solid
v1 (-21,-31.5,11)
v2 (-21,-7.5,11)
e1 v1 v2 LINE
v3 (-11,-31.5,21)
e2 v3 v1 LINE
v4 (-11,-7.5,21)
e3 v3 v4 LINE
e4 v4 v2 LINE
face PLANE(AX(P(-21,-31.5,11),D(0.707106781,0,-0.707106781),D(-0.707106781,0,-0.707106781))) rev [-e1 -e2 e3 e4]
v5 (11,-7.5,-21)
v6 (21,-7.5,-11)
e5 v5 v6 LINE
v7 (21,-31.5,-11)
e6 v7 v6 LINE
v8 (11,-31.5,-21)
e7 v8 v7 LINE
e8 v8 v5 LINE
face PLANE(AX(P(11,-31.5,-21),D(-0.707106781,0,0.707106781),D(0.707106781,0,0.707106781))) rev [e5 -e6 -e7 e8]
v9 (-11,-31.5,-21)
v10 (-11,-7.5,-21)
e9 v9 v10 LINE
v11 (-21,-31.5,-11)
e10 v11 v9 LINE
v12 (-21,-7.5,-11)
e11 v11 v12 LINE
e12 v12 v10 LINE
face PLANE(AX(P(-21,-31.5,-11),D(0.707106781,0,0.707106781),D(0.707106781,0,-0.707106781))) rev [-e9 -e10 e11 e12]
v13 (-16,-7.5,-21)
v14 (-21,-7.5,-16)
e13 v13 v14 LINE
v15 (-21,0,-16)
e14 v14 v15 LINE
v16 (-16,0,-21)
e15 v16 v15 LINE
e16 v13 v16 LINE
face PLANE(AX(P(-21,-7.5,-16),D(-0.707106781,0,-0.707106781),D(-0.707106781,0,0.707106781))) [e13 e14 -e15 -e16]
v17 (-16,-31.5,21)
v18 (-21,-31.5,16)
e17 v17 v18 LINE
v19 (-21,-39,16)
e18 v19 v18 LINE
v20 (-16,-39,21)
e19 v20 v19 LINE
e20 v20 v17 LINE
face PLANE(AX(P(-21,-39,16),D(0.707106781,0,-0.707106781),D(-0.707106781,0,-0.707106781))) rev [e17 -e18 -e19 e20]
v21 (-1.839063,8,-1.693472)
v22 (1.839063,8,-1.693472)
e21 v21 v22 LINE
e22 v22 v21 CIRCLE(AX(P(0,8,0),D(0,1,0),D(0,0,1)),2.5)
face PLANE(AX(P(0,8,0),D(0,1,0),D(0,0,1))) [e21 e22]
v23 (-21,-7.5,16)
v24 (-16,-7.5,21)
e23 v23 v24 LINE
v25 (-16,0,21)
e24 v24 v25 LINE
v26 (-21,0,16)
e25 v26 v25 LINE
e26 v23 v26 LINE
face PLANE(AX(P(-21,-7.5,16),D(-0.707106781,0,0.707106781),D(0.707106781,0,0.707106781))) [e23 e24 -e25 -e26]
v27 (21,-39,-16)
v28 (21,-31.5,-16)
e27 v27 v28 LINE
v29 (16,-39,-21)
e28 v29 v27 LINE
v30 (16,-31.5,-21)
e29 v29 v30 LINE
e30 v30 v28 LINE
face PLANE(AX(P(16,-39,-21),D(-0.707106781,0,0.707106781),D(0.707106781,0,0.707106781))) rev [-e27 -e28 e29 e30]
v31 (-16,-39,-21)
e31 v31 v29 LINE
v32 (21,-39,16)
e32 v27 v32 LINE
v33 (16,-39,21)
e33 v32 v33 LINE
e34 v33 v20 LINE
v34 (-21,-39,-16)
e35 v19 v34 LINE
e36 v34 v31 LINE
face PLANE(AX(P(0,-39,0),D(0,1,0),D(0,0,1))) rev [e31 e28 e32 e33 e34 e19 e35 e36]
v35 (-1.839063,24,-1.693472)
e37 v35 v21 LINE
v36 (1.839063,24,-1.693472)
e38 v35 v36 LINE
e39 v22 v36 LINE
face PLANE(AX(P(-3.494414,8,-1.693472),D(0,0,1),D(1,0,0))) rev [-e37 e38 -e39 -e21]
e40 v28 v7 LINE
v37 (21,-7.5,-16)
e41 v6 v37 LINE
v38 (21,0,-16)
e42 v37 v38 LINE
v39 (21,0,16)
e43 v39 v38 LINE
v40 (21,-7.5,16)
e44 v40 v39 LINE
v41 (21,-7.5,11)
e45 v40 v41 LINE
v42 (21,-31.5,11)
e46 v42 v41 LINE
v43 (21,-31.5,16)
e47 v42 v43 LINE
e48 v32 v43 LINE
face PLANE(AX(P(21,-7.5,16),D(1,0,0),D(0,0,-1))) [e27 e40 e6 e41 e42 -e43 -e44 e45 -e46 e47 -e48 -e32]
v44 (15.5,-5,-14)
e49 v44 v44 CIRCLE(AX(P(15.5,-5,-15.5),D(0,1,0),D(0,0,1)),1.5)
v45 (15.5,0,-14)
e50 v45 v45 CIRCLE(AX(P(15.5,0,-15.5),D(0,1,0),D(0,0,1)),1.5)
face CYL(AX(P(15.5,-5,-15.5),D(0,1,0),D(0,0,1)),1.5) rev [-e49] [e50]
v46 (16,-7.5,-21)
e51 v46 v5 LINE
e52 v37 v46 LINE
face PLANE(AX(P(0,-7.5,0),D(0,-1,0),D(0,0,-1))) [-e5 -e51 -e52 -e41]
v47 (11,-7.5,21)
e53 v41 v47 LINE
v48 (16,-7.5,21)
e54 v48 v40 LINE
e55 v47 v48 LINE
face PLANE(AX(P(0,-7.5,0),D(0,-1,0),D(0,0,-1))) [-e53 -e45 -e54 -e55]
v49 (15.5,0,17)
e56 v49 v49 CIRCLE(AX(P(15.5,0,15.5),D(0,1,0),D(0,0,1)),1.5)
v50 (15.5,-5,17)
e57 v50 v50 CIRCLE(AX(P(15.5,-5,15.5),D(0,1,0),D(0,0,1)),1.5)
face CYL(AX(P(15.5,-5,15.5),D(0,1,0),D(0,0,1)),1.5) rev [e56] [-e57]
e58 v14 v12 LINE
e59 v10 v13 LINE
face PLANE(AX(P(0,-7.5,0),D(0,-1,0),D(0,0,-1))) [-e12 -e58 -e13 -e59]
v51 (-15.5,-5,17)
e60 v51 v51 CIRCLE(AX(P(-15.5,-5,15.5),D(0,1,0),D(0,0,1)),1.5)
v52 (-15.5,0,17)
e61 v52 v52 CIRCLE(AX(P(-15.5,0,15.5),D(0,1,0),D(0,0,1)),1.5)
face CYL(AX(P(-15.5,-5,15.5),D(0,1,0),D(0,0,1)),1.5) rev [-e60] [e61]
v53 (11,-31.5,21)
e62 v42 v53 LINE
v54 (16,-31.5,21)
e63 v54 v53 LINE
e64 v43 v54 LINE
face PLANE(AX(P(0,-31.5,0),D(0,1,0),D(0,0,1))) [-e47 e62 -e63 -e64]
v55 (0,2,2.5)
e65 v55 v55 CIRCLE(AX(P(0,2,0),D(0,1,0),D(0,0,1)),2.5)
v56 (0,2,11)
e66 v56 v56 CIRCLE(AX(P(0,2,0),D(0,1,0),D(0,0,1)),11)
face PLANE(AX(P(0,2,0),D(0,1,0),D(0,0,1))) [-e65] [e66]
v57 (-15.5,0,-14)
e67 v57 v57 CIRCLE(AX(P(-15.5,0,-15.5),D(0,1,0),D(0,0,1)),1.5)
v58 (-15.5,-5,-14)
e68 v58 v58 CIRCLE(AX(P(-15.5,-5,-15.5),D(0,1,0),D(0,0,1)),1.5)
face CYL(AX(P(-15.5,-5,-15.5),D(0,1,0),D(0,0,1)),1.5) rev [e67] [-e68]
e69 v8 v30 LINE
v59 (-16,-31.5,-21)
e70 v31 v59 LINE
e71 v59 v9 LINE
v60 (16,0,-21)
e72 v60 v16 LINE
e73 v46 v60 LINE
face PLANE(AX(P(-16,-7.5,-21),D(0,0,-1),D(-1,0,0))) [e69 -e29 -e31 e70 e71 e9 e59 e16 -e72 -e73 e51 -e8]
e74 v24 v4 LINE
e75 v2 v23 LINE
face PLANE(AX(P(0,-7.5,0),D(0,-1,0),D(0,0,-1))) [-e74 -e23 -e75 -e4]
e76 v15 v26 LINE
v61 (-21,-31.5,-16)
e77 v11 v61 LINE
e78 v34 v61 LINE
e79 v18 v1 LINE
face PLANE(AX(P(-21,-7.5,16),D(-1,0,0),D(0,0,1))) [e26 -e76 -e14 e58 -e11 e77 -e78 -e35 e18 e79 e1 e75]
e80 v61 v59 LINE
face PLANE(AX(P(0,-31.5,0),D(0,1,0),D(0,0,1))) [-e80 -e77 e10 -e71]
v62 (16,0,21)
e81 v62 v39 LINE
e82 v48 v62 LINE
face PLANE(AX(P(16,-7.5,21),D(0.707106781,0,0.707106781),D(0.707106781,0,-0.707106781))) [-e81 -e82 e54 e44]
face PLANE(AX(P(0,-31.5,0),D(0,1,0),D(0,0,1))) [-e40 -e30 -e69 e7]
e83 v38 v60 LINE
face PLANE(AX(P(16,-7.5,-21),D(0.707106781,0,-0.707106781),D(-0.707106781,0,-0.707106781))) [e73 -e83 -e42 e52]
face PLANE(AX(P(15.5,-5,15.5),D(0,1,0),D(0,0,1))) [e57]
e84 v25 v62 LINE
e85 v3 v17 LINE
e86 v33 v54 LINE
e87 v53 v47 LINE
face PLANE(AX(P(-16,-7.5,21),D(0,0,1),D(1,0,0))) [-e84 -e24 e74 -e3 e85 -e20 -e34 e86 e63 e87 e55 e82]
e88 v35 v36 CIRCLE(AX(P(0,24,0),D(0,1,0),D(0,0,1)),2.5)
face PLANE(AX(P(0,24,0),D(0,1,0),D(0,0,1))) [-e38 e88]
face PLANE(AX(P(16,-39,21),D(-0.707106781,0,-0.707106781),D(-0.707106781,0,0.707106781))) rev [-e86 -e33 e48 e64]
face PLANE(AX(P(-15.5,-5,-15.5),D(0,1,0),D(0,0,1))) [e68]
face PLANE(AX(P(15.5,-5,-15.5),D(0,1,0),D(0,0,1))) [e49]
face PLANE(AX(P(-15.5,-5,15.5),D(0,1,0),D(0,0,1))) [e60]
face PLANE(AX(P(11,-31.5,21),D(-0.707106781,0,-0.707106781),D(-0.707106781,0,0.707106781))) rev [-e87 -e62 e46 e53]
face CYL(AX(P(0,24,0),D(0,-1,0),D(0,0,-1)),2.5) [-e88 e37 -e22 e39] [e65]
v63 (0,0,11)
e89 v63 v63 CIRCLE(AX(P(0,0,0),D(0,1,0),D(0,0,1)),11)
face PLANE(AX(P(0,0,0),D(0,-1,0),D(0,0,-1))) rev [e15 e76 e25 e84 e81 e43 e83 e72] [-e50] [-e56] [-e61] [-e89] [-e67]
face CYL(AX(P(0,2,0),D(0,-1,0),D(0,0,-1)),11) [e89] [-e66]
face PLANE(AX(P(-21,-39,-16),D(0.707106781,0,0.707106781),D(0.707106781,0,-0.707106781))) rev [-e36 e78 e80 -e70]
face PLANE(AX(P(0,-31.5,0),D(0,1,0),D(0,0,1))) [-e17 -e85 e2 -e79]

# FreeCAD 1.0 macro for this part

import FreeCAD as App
import Part
import Sketcher
from FreeCAD import Vector


def add_polygon(sketch, points):
    """Adds a closed chain of lines whose ends are joined by coincident constraints."""
    first, n = sketch.GeometryCount, len(points)
    for a, b in zip(points, points[1:] + points[:1]):
        sketch.addGeometry(Part.LineSegment(App.Vector(*a, 0), App.Vector(*b, 0)), False)
    for i in range(n):
        sketch.addConstraint(Sketcher.Constraint("Coincident", first + i, 2, first + (i + 1) % n, 1))

doc = App.newDocument("Part")
body = doc.addObject("PartDesign::Body", "Body")

# Sketch on XZ plane
sketch1 = body.newObject("Sketcher::SketchObject", "Sketch")
sketch1.AttachmentSupport = (doc.getObject("XZ_Plane"), [""])
sketch1.MapMode = "FlatFace"
add_polygon(sketch1, [(-16, -21), (-21, -16), (-21, 16), (-16, 21), (16, 21), (21, 16), (21, -16), (16, -21)])  # lines 0-7
sketch1.addConstraint(Sketcher.Constraint("Vertical", 1))
sketch1.addConstraint(Sketcher.Constraint("Horizontal", 3))
sketch1.addConstraint(Sketcher.Constraint("Vertical", 5))
sketch1.addConstraint(Sketcher.Constraint("Horizontal", 7))
sketch1.addConstraint(Sketcher.Constraint("Symmetric", 0, 2, 4, 2, -1, 1))
sketch1.addConstraint(Sketcher.Constraint("Symmetric", 2, 2, 6, 2, -1, 1))
sketch1.addConstraint(Sketcher.Constraint("Perpendicular", 0, 2))
sketch1.addConstraint(Sketcher.Constraint("Perpendicular", 2, 4))
sketch1.addConstraint(Sketcher.Constraint("Perpendicular", 4, 6))
sketch1.addConstraint(Sketcher.Constraint("Horizontal", 1, 2, 4, 2))
sketch1.addConstraint(Sketcher.Constraint("Vertical", 3, 2, 6, 2))
sketch1.addConstraint(Sketcher.Constraint("Equal", 7, 1))
sketch1.addConstraint(Sketcher.Constraint("DistanceX", 3, 1, 3, 2, 32.0))
sketch1.addConstraint(Sketcher.Constraint("DistanceX", 0, 2, -1, 1, 21.0))
pad1 = body.newObject("PartDesign::Pad", "Pad")
pad1.Profile = sketch1
pad1.Length = 7.5

# Sketch on XZ plane
sketch2 = body.newObject("Sketcher::SketchObject", "Sketch001")
sketch2.AttachmentSupport = (doc.getObject("XZ_Plane"), [""])
sketch2.MapMode = "FlatFace"
sketch2.AttachmentOffset = App.Placement(Vector(0, 0, 7.5), App.Rotation())
add_polygon(sketch2, [(-11, 21), (-21, 11), (-21, -11), (-11, -21), (11, -21), (21, -11), (21, 11), (11, 21)])  # lines 0-7
sketch2.addConstraint(Sketcher.Constraint("Vertical", 1))
sketch2.addConstraint(Sketcher.Constraint("Horizontal", 3))
sketch2.addConstraint(Sketcher.Constraint("Vertical", 5))
sketch2.addConstraint(Sketcher.Constraint("Horizontal", 7))
sketch2.addConstraint(Sketcher.Constraint("Symmetric", 0, 2, 4, 2, -1, 1))
sketch2.addConstraint(Sketcher.Constraint("Symmetric", 2, 2, 6, 2, -1, 1))
sketch2.addConstraint(Sketcher.Constraint("Perpendicular", 0, 2))
sketch2.addConstraint(Sketcher.Constraint("Perpendicular", 2, 4))
sketch2.addConstraint(Sketcher.Constraint("Perpendicular", 4, 6))
sketch2.addConstraint(Sketcher.Constraint("Horizontal", 1, 2, 4, 2))
sketch2.addConstraint(Sketcher.Constraint("Vertical", 3, 2, 6, 2))
sketch2.addConstraint(Sketcher.Constraint("Equal", 7, 1))
sketch2.addConstraint(Sketcher.Constraint("DistanceX", 3, 1, 3, 2, 22.0))
sketch2.addConstraint(Sketcher.Constraint("DistanceX", 0, 2, -1, 1, 21.0))
pad2 = body.newObject("PartDesign::Pad", "Pad001")
pad2.Profile = sketch2
pad2.Length = 24

# Sketch on XZ plane
sketch3 = body.newObject("Sketcher::SketchObject", "Sketch002")
sketch3.AttachmentSupport = (doc.getObject("XZ_Plane"), [""])
sketch3.MapMode = "FlatFace"
sketch3.AttachmentOffset = App.Placement(Vector(0, 0, 31.5), App.Rotation())
add_polygon(sketch3, [(-16, 21), (-21, 16), (-21, -16), (-16, -21), (16, -21), (21, -16), (21, 16), (16, 21)])  # lines 0-7
sketch3.addConstraint(Sketcher.Constraint("Vertical", 1))
sketch3.addConstraint(Sketcher.Constraint("Horizontal", 3))
sketch3.addConstraint(Sketcher.Constraint("Vertical", 5))
sketch3.addConstraint(Sketcher.Constraint("Horizontal", 7))
sketch3.addConstraint(Sketcher.Constraint("Symmetric", 0, 2, 4, 2, -1, 1))
sketch3.addConstraint(Sketcher.Constraint("Symmetric", 2, 2, 6, 2, -1, 1))
sketch3.addConstraint(Sketcher.Constraint("Perpendicular", 0, 2))
sketch3.addConstraint(Sketcher.Constraint("Perpendicular", 2, 4))
sketch3.addConstraint(Sketcher.Constraint("Perpendicular", 4, 6))
sketch3.addConstraint(Sketcher.Constraint("Horizontal", 1, 2, 4, 2))
sketch3.addConstraint(Sketcher.Constraint("Vertical", 3, 2, 6, 2))
sketch3.addConstraint(Sketcher.Constraint("Equal", 7, 1))
sketch3.addConstraint(Sketcher.Constraint("DistanceX", 3, 1, 3, 2, 32.0))
sketch3.addConstraint(Sketcher.Constraint("DistanceX", 0, 2, -1, 1, 21.0))
pad3 = body.newObject("PartDesign::Pad", "Pad002")
pad3.Profile = sketch3
pad3.Length = 7.5

# Sketch on XZ plane
sketch4 = body.newObject("Sketcher::SketchObject", "Sketch003")
sketch4.AttachmentSupport = (doc.getObject("XZ_Plane"), [""])
sketch4.MapMode = "FlatFace"
sketch4.addGeometry(Part.Circle(Vector(0, 0, 0), Vector(0, 0, 1), 11), False)
sketch4.addConstraint(Sketcher.Constraint("Coincident", 0, 3, -1, 1))
sketch4.addConstraint(Sketcher.Constraint("Diameter", 0, 22.0))
pad4 = body.newObject("PartDesign::Pad", "Pad003")
pad4.Profile = sketch4
pad4.Length = 2
pad4.Reversed = True

# Sketch on XZ plane
sketch5 = body.newObject("Sketcher::SketchObject", "Sketch004")
sketch5.AttachmentSupport = (doc.getObject("XZ_Plane"), [""])
sketch5.MapMode = "FlatFace"
sketch5.AttachmentOffset = App.Placement(Vector(0, 0, -2), App.Rotation())
sketch5.addGeometry(Part.Circle(Vector(0, 0, 0), Vector(0, 0, 1), 2.5), False)
sketch5.addConstraint(Sketcher.Constraint("Coincident", 0, 3, -1, 1))
sketch5.addConstraint(Sketcher.Constraint("Diameter", 0, 5.0))
pad5 = body.newObject("PartDesign::Pad", "Pad004")
pad5.Profile = sketch5
pad5.Length = 22
pad5.Reversed = True

# Sketch on XZ plane
sketch6 = body.newObject("Sketcher::SketchObject", "Sketch005")
sketch6.AttachmentSupport = (doc.getObject("XZ_Plane"), [""])
sketch6.MapMode = "FlatFace"
sketch6.AttachmentOffset = App.Placement(Vector(0, 0, -24), App.Rotation())
add_polygon(sketch6, [(-3.5, -3.6), (-3.5, -1.7), (3.7, -1.7), (3.7, -3.6)])  # lines 0-3
sketch6.addConstraint(Sketcher.Constraint("Vertical", 0))
sketch6.addConstraint(Sketcher.Constraint("Horizontal", 1))
sketch6.addConstraint(Sketcher.Constraint("Vertical", 2))
sketch6.addConstraint(Sketcher.Constraint("Horizontal", 3))
sketch6.addConstraint(Sketcher.Constraint("DistanceX", 1, 1, 1, 2, 7.205666))
sketch6.addConstraint(Sketcher.Constraint("DistanceY", 0, 1, 0, 2, 1.954367))
sketch6.addConstraint(Sketcher.Constraint("DistanceX", -1, 1, 1, 2, 3.711252))
sketch6.addConstraint(Sketcher.Constraint("DistanceY", 2, 2, -1, 1, 3.647839))
pocket1 = body.newObject("PartDesign::Pocket", "Pocket")
pocket1.Profile = sketch6
pocket1.Length = 16
pocket1.Reversed = True

# Sketch on XZ plane
sketch7 = body.newObject("Sketcher::SketchObject", "Sketch006")
sketch7.AttachmentSupport = (doc.getObject("XZ_Plane"), [""])
sketch7.MapMode = "FlatFace"
sketch7.addGeometry(Part.Circle(Vector(-15.5, -15.5, 0), Vector(0, 0, 1), 1.5), False)
sketch7.addGeometry(Part.Circle(Vector(15.5, -15.5, 0), Vector(0, 0, 1), 1.5), False)
sketch7.addGeometry(Part.Circle(Vector(15.5, 15.5, 0), Vector(0, 0, 1), 1.5), False)
sketch7.addGeometry(Part.Circle(Vector(-15.5, 15.5, 0), Vector(0, 0, 1), 1.5), False)
sketch7.addConstraint(Sketcher.Constraint("Equal", 0, 1))
sketch7.addConstraint(Sketcher.Constraint("Equal", 1, 2))
sketch7.addConstraint(Sketcher.Constraint("Equal", 2, 3))
sketch7.addConstraint(Sketcher.Constraint("Symmetric", 0, 3, 2, 3, -1, 1))
sketch7.addConstraint(Sketcher.Constraint("Symmetric", 1, 3, 3, 3, -1, 1))
sketch7.addConstraint(Sketcher.Constraint("Symmetric", 0, 3, 1, 3, -2))
sketch7.addConstraint(Sketcher.Constraint("Diameter", 0, 3.0))
sketch7.addConstraint(Sketcher.Constraint("DistanceX", 0, 3, 1, 3, 31.0))
sketch7.addConstraint(Sketcher.Constraint("DistanceY", 1, 3, 2, 3, 31.0))
pocket2 = body.newObject("PartDesign::Pocket", "Pocket001")
pocket2.Profile = sketch7
pocket2.Length = 5
pocket2.Reversed = True

doc.recompute()
